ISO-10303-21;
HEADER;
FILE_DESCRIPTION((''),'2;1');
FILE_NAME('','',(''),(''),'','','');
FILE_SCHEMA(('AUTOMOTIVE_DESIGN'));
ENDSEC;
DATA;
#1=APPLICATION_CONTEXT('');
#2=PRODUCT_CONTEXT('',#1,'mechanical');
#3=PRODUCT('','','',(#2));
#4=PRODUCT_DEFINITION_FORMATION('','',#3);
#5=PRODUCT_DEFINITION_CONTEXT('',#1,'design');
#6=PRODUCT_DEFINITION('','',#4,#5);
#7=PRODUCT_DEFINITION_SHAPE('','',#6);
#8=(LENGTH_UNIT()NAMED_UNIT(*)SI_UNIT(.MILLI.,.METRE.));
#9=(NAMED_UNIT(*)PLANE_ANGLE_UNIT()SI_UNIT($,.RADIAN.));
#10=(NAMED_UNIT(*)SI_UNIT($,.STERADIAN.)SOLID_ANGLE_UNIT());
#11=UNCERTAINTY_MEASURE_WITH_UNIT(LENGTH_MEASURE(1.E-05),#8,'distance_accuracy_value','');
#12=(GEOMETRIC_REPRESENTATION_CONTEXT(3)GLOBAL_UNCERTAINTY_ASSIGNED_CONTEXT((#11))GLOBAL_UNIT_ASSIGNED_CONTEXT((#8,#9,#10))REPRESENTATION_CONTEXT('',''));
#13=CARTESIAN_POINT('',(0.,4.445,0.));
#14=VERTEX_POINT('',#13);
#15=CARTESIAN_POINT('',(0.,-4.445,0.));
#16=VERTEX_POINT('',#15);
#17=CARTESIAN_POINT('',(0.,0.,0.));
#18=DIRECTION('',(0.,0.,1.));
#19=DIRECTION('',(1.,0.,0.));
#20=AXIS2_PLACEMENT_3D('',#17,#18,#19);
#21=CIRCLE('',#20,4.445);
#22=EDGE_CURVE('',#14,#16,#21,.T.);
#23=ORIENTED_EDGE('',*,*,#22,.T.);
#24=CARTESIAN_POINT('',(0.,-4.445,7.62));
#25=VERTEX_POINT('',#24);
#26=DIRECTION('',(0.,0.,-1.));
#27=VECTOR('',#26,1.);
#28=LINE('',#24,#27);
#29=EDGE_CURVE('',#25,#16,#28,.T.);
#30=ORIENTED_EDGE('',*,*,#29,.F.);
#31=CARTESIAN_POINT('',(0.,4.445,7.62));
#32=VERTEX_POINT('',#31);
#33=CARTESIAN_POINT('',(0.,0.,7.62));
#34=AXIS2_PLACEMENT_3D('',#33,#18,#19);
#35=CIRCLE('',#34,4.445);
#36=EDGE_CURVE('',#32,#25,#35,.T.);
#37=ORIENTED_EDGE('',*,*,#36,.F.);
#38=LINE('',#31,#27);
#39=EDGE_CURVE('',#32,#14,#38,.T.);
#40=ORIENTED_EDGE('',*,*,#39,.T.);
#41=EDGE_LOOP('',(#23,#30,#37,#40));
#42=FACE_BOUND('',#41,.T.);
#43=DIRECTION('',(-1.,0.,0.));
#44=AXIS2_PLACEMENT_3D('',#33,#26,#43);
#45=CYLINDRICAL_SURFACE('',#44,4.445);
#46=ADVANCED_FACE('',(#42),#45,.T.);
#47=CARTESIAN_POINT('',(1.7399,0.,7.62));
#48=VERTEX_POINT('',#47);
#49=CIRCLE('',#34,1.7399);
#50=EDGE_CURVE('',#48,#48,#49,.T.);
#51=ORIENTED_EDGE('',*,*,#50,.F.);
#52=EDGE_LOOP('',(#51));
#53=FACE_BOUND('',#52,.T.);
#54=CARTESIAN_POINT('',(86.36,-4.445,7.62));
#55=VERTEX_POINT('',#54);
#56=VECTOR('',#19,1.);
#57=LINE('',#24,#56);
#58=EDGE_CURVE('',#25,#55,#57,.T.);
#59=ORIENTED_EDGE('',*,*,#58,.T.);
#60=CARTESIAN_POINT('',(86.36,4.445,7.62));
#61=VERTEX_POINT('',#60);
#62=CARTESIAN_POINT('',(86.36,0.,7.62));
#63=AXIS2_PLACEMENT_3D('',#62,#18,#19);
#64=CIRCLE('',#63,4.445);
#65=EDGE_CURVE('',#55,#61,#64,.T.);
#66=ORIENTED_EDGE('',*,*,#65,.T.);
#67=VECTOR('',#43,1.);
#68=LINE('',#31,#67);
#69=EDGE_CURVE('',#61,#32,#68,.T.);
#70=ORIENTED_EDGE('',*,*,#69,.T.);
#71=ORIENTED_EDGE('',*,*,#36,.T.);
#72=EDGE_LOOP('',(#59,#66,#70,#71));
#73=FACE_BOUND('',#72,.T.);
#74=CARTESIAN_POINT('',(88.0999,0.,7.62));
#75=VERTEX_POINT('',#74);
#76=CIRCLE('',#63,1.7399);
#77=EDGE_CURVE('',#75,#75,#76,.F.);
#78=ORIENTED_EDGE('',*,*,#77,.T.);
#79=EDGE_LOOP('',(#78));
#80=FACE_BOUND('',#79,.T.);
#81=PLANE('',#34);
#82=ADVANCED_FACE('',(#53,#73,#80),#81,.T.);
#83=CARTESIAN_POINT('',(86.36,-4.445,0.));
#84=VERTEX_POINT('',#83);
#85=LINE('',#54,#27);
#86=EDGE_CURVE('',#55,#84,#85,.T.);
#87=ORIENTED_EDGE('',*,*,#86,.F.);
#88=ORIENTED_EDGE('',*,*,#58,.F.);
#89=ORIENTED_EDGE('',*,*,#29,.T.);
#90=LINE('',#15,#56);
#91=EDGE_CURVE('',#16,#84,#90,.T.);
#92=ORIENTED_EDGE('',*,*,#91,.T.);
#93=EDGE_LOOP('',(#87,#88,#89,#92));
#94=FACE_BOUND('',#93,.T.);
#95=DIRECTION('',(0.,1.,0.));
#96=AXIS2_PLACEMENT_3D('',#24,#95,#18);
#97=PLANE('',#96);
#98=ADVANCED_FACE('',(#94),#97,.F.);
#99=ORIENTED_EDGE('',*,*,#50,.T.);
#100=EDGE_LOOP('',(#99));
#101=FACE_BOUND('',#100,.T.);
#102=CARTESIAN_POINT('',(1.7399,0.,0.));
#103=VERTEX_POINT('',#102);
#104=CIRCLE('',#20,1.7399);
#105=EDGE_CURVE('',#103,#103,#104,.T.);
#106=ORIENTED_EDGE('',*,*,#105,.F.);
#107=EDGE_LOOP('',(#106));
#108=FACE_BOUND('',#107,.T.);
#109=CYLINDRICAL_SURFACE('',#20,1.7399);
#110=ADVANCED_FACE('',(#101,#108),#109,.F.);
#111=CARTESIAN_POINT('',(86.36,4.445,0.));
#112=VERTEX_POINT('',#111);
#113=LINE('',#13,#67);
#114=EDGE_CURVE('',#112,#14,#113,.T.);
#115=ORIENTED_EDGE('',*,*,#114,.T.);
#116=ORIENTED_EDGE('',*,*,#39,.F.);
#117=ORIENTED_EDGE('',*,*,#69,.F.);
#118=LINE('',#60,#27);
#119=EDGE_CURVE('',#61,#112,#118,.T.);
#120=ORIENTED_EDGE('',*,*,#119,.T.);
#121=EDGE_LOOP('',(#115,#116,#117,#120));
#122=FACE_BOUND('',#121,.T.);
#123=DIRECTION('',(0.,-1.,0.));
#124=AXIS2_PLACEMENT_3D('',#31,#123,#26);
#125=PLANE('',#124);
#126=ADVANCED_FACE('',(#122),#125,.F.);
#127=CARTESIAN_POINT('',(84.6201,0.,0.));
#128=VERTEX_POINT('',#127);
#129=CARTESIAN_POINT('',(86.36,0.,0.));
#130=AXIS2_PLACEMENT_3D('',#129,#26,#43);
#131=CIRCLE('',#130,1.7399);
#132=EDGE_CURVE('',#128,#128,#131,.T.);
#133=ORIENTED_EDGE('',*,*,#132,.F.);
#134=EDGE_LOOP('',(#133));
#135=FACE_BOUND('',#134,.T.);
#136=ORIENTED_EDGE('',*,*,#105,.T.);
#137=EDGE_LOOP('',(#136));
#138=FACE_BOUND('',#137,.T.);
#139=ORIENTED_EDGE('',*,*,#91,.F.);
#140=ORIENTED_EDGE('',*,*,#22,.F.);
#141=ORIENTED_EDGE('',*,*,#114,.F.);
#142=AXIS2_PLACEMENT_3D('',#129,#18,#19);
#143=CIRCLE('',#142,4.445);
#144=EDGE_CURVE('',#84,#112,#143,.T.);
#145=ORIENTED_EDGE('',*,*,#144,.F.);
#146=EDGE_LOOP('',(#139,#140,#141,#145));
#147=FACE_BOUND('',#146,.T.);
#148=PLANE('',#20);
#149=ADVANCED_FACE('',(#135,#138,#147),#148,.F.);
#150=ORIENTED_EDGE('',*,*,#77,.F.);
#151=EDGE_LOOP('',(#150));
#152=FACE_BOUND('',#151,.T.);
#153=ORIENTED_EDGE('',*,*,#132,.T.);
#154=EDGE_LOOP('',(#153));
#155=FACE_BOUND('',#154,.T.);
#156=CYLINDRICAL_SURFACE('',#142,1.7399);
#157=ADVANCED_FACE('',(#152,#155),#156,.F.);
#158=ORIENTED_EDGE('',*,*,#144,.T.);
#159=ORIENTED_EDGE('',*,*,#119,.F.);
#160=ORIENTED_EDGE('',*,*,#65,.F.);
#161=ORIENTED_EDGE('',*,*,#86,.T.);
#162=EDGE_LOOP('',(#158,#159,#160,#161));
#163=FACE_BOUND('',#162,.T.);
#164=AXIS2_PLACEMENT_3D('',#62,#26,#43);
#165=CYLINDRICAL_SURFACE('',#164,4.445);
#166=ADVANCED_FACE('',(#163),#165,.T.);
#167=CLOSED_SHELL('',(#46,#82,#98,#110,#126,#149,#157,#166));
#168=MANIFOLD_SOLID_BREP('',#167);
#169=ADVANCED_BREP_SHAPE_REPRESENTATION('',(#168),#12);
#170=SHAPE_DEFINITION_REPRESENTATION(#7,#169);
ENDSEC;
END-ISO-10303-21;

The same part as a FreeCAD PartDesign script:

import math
import FreeCAD as App
import Part
import Sketcher

V = App.Vector
Q = App.Units.Quantity

doc = App.newDocument("Part")
body = doc.addObject("PartDesign::Body", "Body")

sketch1 = doc.addObject("Sketcher::SketchObject", "Sketch")
body.addObject(sketch1)
sketch1.AttachmentSupport = (doc.XY_Plane, [""])
sketch1.MapMode = "FlatFace"
sketch1.addGeometry([
    Part.LineSegment(V(86.4, 4.4, 0), V(0, 4.4, 0)),
    Part.ArcOfCircle(Part.Circle(V(0, 0, 0), V(0, 0, 1), 4.4), math.radians(90), math.radians(270)),
    Part.LineSegment(V(0, -4.4, 0), V(86.4, -4.4, 0)),
    Part.ArcOfCircle(Part.Circle(V(86.4, 0, 0), V(0, 0, 1), 4.4), math.radians(-90), math.radians(90)),
], False)
sketch1.addConstraint([
    Sketcher.Constraint("Tangent", 0, 2, 1, 1),
    Sketcher.Constraint("Tangent", 1, 2, 2, 1),
    Sketcher.Constraint("Tangent", 2, 2, 3, 1),
    Sketcher.Constraint("Tangent", 3, 2, 0, 1),
    Sketcher.Constraint("Horizontal", 0),
    Sketcher.Constraint("Horizontal", 2),
    Sketcher.Constraint("Coincident", 1, 3, -1, 1),
    Sketcher.Constraint("DistanceX", 0, 2, 0, 1, Q("3.4 in")),
    Sketcher.Constraint("Radius", 1, Q("0.175 in")),
])
pad1 = doc.addObject("PartDesign::Pad", "Pad")
body.addObject(pad1)
pad1.Profile = sketch1
pad1.Length = Q("0.3 in")

sketch2 = doc.addObject("Sketcher::SketchObject", "Sketch001")
body.addObject(sketch2)
sketch2.AttachmentSupport = (doc.XY_Plane, [""])
sketch2.MapMode = "FlatFace"
sketch2.AttachmentOffset = App.Placement(V(0, 0, -1), App.Rotation())
sketch2.addGeometry(Part.Circle(V(0, 0, 0), V(0, 0, 1), 1.7), False)
sketch2.addConstraint([
    Sketcher.Constraint("Coincident", 0, 3, -1, 1),
    Sketcher.Constraint("Diameter", 0, Q("0.137 in")),
])
pocket1 = doc.addObject("PartDesign::Pocket", "Pocket")
body.addObject(pocket1)
pocket1.Profile = sketch2
pocket1.Length = 9.62
pocket1.Reversed = True
doc.recompute()

datumplane = doc.addObject("PartDesign::Plane", "DatumPlane")
body.addObject(datumplane)
datumplane.AttachmentSupport = (doc.YZ_Plane, [""])
datumplane.MapMode = "FlatFace"
datumplane.AttachmentOffset = App.Placement(V(0, 0, 1.7 * 25.4), App.Rotation())
mirrored = doc.addObject("PartDesign::Mirrored", "Mirrored")
body.addObject(mirrored)
mirrored.Originals = [pocket1]
mirrored.MirrorPlane = (datumplane, [""])
body.Tip = mirrored

doc.recompute()
